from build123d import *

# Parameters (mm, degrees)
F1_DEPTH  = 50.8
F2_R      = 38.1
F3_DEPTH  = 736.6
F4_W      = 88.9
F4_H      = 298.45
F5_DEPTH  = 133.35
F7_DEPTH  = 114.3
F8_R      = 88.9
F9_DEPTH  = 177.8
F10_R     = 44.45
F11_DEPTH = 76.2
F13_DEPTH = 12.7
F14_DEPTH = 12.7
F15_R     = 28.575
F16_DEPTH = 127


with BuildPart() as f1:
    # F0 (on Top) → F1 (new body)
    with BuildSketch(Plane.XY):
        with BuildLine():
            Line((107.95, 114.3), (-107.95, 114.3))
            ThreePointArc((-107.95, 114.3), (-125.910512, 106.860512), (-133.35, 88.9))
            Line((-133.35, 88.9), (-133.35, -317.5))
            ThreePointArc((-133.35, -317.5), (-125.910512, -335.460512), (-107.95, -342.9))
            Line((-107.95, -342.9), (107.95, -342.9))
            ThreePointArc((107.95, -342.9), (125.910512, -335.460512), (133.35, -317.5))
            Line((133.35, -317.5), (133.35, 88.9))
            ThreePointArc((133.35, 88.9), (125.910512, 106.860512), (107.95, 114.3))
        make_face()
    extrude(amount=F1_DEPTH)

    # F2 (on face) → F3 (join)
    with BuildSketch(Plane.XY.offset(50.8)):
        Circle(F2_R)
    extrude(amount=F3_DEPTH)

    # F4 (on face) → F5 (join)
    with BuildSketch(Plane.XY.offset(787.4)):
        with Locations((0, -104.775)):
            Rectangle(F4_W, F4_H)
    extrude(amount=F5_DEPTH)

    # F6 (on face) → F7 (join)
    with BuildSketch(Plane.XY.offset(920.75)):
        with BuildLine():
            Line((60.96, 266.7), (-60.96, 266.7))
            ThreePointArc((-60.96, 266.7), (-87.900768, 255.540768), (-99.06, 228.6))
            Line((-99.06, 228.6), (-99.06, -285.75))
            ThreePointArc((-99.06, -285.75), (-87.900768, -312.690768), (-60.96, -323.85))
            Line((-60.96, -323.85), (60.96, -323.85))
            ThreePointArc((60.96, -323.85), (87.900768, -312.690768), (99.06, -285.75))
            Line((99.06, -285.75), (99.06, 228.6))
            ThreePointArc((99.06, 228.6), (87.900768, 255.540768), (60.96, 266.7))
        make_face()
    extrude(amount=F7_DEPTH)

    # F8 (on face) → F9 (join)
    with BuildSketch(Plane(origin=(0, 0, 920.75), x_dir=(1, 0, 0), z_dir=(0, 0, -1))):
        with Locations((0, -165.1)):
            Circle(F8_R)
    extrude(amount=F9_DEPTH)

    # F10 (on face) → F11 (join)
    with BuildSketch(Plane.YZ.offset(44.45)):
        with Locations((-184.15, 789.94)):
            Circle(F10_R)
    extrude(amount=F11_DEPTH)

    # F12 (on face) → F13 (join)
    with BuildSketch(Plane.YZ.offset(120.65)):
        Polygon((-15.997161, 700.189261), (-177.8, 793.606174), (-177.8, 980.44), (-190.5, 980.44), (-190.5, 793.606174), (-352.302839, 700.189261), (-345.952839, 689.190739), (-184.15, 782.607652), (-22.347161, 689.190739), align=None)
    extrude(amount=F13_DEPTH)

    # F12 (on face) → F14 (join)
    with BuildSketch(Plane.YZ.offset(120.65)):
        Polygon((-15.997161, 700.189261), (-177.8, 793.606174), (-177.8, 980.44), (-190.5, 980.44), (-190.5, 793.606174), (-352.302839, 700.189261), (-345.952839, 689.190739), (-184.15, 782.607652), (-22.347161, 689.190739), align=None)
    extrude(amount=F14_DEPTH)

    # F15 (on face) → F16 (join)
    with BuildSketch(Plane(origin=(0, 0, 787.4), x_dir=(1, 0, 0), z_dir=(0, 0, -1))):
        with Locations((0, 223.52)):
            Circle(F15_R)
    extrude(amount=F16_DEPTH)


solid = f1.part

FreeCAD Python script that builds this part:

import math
import FreeCAD as App
import Part
import Sketcher
from FreeCAD import Vector
Q = App.Units.Quantity

doc = App.newDocument("Part")
body = doc.addObject("PartDesign::Body", "Body")

# Sketch on XY plane
sketch1 = body.newObject("Sketcher::SketchObject", "Sketch")
sketch1.AttachmentSupport = (doc.getObject("XY_Plane"), [""])
sketch1.MapMode = "FlatFace"
sketch1.addGeometry([
    Part.LineSegment(Vector(108, 114, 0), Vector(-108, 114, 0)),  # 0
    Part.ArcOfCircle(Part.Circle(Vector(-108, 89, 0), Vector(0, 0, 1), 25), math.radians(90), math.radians(180)),  # 1
    Part.LineSegment(Vector(-133, 89, 0), Vector(-133, -318, 0)),  # 2
    Part.ArcOfCircle(Part.Circle(Vector(-108, -317, 0), Vector(0, 0, 1), 25), math.radians(-180), math.radians(-90)),  # 3
    Part.LineSegment(Vector(-108, -343, 0), Vector(108, -343, 0)),  # 4
    Part.ArcOfCircle(Part.Circle(Vector(108, -317, 0), Vector(0, 0, 1), 25), math.radians(-90), math.radians(0)),  # 5
    Part.LineSegment(Vector(133, -318, 0), Vector(133, 89, 0)),  # 6
    Part.ArcOfCircle(Part.Circle(Vector(108, 89, 0), Vector(0, 0, 1), 25), math.radians(0), math.radians(90)),  # 7
], False)
sketch1.addConstraint([
    Sketcher.Constraint("Tangent", 0, 2, 1, 1),
    Sketcher.Constraint("Tangent", 1, 2, 2, 1),
    Sketcher.Constraint("Tangent", 2, 2, 3, 1),
    Sketcher.Constraint("Tangent", 3, 2, 4, 1),
    Sketcher.Constraint("Tangent", 4, 2, 5, 1),
    Sketcher.Constraint("Tangent", 5, 2, 6, 1),
    Sketcher.Constraint("Tangent", 6, 2, 7, 1),
    Sketcher.Constraint("Tangent", 7, 2, 0, 1),
    Sketcher.Constraint("Horizontal", 0),
    Sketcher.Constraint("Vertical", 2),
    Sketcher.Constraint("Horizontal", 4),
    Sketcher.Constraint("Vertical", 6),
    Sketcher.Constraint("Equal", 1, 3),
    Sketcher.Constraint("Equal", 3, 5),
    Sketcher.Constraint("Equal", 5, 7),
    Sketcher.Constraint("Radius", 1, Q("1 in")),
    Sketcher.Constraint("DistanceY", 2, 2, 2, 1, Q("16 in")),
    Sketcher.Constraint("DistanceX", 0, 2, 0, 1, Q("8.5 in")),
    Sketcher.Constraint("DistanceY", -1, 1, 1, 3, Q("3.5 in")),
    Sketcher.Constraint("DistanceX", 1, 3, -1, 1, Q("4.25 in")),
])
pad1 = body.newObject("PartDesign::Pad", "Pad")
pad1.Profile = sketch1
pad1.Length = Q("2 in")

# Sketch on XY plane
sketch2 = body.newObject("Sketcher::SketchObject", "Sketch001")
sketch2.AttachmentSupport = (doc.getObject("XY_Plane"), [""])
sketch2.MapMode = "FlatFace"
sketch2.AttachmentOffset = App.Placement(Vector(0, 0, 2 * 25.4), App.Rotation())
sketch2.addGeometry(Part.Circle(Vector(0, 0, 0), Vector(0, 0, 1), 38), False)
sketch2.addConstraint([
    Sketcher.Constraint("Coincident", 0, 3, -1, 1),
    Sketcher.Constraint("Diameter", 0, Q("3 in")),
])
pad2 = body.newObject("PartDesign::Pad", "Pad001")
pad2.Profile = sketch2
pad2.Length = Q("29 in")

# Sketch on XY plane
sketch3 = body.newObject("Sketcher::SketchObject", "Sketch002")
sketch3.AttachmentSupport = (doc.getObject("XY_Plane"), [""])
sketch3.MapMode = "FlatFace"
sketch3.AttachmentOffset = App.Placement(Vector(0, 0, 31 * 25.4), App.Rotation())
sketch3.addGeometry([
    Part.LineSegment(Vector(-44, 44, 0), Vector(-44, -254, 0)),
    Part.LineSegment(Vector(-44, -254, 0), Vector(44, -254, 0)),
    Part.LineSegment(Vector(44, -254, 0), Vector(44, 44, 0)),
    Part.LineSegment(Vector(44, 44, 0), Vector(-44, 44, 0)),
], False)
sketch3.addConstraint([
    Sketcher.Constraint("Coincident", 0, 2, 1, 1),
    Sketcher.Constraint("Coincident", 1, 2, 2, 1),
    Sketcher.Constraint("Coincident", 2, 2, 3, 1),
    Sketcher.Constraint("Coincident", 3, 2, 0, 1),
    Sketcher.Constraint("Vertical", 0),
    Sketcher.Constraint("Horizontal", 1),
    Sketcher.Constraint("Vertical", 2),
    Sketcher.Constraint("Horizontal", 3),
    Sketcher.Constraint("DistanceX", 1, 1, 1, 2, Q("3.5 in")),
    Sketcher.Constraint("DistanceY", 0, 2, -1, 1, Q("10 in")),
    Sketcher.Constraint("DistanceY", 0, 2, 0, 1, Q("11.75 in")),
    Sketcher.Constraint("DistanceX", 0, 2, -1, 1, Q("1.75 in")),
])
pad3 = body.newObject("PartDesign::Pad", "Pad002")
pad3.Profile = sketch3
pad3.Length = Q("5.25 in")

# Sketch on XY plane
sketch4 = body.newObject("Sketcher::SketchObject", "Sketch003")
sketch4.AttachmentSupport = (doc.getObject("XY_Plane"), [""])
sketch4.MapMode = "FlatFace"
sketch4.AttachmentOffset = App.Placement(Vector(0, 0, 36.25 * 25.4), App.Rotation())
sketch4.addGeometry([
    Part.LineSegment(Vector(61, 267, 0), Vector(-61, 267, 0)),  # 0
    Part.ArcOfCircle(Part.Circle(Vector(-61, 229, 0), Vector(0, 0, 1), 38), math.radians(90), math.radians(180)),  # 1
    Part.LineSegment(Vector(-99, 229, 0), Vector(-99, -286, 0)),  # 2
    Part.ArcOfCircle(Part.Circle(Vector(-61, -286, 0), Vector(0, 0, 1), 38), math.radians(-180), math.radians(-90)),  # 3
    Part.LineSegment(Vector(-61, -324, 0), Vector(61, -324, 0)),  # 4
    Part.ArcOfCircle(Part.Circle(Vector(61, -286, 0), Vector(0, 0, 1), 38), math.radians(-90), math.radians(0)),  # 5
    Part.LineSegment(Vector(99, -286, 0), Vector(99, 229, 0)),  # 6
    Part.ArcOfCircle(Part.Circle(Vector(61, 229, 0), Vector(0, 0, 1), 38), math.radians(0), math.radians(90)),  # 7
], False)
sketch4.addConstraint([
    Sketcher.Constraint("Tangent", 0, 2, 1, 1),
    Sketcher.Constraint("Tangent", 1, 2, 2, 1),
    Sketcher.Constraint("Tangent", 2, 2, 3, 1),
    Sketcher.Constraint("Tangent", 3, 2, 4, 1),
    Sketcher.Constraint("Tangent", 4, 2, 5, 1),
    Sketcher.Constraint("Tangent", 5, 2, 6, 1),
    Sketcher.Constraint("Tangent", 6, 2, 7, 1),
    Sketcher.Constraint("Tangent", 7, 2, 0, 1),
    Sketcher.Constraint("Horizontal", 0),
    Sketcher.Constraint("Vertical", 2),
    Sketcher.Constraint("Horizontal", 4),
    Sketcher.Constraint("Vertical", 6),
    Sketcher.Constraint("Equal", 1, 3),
    Sketcher.Constraint("Equal", 3, 5),
    Sketcher.Constraint("Equal", 5, 7),
    Sketcher.Constraint("Radius", 1, Q("1.5 in")),
    Sketcher.Constraint("DistanceX", 0, 2, 0, 1, Q("4.8 in")),
    Sketcher.Constraint("DistanceY", -1, 1, 1, 3, Q("9 in")),
    Sketcher.Constraint("DistanceY", 2, 2, 2, 1, Q("20.25 in")),
    Sketcher.Constraint("DistanceX", 1, 3, -1, 1, Q("2.4 in")),
])
pad4 = body.newObject("PartDesign::Pad", "Pad003")
pad4.Profile = sketch4
pad4.Length = Q("4.5 in")

# Sketch on XY plane
sketch5 = body.newObject("Sketcher::SketchObject", "Sketch004")
sketch5.AttachmentSupport = (doc.getObject("XY_Plane"), [""])
sketch5.MapMode = "FlatFace"
sketch5.AttachmentOffset = App.Placement(Vector(0, 0, 36.25 * 25.4), App.Rotation())
sketch5.addGeometry(Part.Circle(Vector(0, 165, 0), Vector(0, 0, 1), 89), False)
sketch5.addConstraint([
    Sketcher.Constraint("PointOnObject", 0, 3, -2),
    Sketcher.Constraint("Diameter", 0, Q("7 in")),
    Sketcher.Constraint("DistanceY", -1, 1, 0, 3, Q("6.5 in")),
])
pad5 = body.newObject("PartDesign::Pad", "Pad004")
pad5.Profile = sketch5
pad5.Length = Q("7 in")
pad5.Reversed = True

# Sketch on YZ plane
sketch6 = body.newObject("Sketcher::SketchObject", "Sketch005")
sketch6.AttachmentSupport = (doc.getObject("YZ_Plane"), [""])
sketch6.MapMode = "FlatFace"
sketch6.AttachmentOffset = App.Placement(Vector(0, 0, 1.75 * 25.4), App.Rotation())
sketch6.addGeometry(Part.Circle(Vector(-184, 790, 0), Vector(0, 0, 1), 44), False)
sketch6.addConstraint([
    Sketcher.Constraint("Diameter", 0, Q("3.5 in")),
    Sketcher.Constraint("DistanceY", -1, 1, 0, 3, Q("31.1 in")),
    Sketcher.Constraint("DistanceX", 0, 3, -1, 1, Q("7.25 in")),
])
pad6 = body.newObject("PartDesign::Pad", "Pad005")
pad6.Profile = sketch6
pad6.Length = Q("3 in")

# Sketch on YZ plane
sketch7 = body.newObject("Sketcher::SketchObject", "Sketch006")
sketch7.AttachmentSupport = (doc.getObject("YZ_Plane"), [""])
sketch7.MapMode = "FlatFace"
sketch7.AttachmentOffset = App.Placement(Vector(0, 0, 4.75 * 25.4), App.Rotation())
sketch7.addGeometry([
    Part.LineSegment(Vector(-16, 700, 0), Vector(-178, 794, 0)),  # 0
    Part.LineSegment(Vector(-178, 794, 0), Vector(-178, 980, 0)),  # 1
    Part.LineSegment(Vector(-178, 980, 0), Vector(-190, 980, 0)),  # 2
    Part.LineSegment(Vector(-190, 980, 0), Vector(-190, 794, 0)),  # 3
    Part.LineSegment(Vector(-190, 794, 0), Vector(-352, 700, 0)),  # 4
    Part.LineSegment(Vector(-352, 700, 0), Vector(-346, 689, 0)),  # 5
    Part.LineSegment(Vector(-346, 689, 0), Vector(-184, 783, 0)),  # 6
    Part.LineSegment(Vector(-184, 783, 0), Vector(-22, 689, 0)),  # 7
    Part.LineSegment(Vector(-22, 689, 0), Vector(-16, 700, 0)),  # 8
], False)
sketch7.addConstraint([
    Sketcher.Constraint("Coincident", 0, 2, 1, 1),
    Sketcher.Constraint("Coincident", 1, 2, 2, 1),
    Sketcher.Constraint("Coincident", 2, 2, 3, 1),
    Sketcher.Constraint("Coincident", 3, 2, 4, 1),
    Sketcher.Constraint("Coincident", 4, 2, 5, 1),
    Sketcher.Constraint("Coincident", 5, 2, 6, 1),
    Sketcher.Constraint("Coincident", 6, 2, 7, 1),
    Sketcher.Constraint("Coincident", 7, 2, 8, 1),
    Sketcher.Constraint("Coincident", 8, 2, 0, 1),
    Sketcher.Constraint("Vertical", 1),
    Sketcher.Constraint("Horizontal", 2),
    Sketcher.Constraint("Vertical", 3),
    Sketcher.Constraint("Perpendicular", 4, 5),
    Sketcher.Constraint("Perpendicular", 5, 6),
    Sketcher.Constraint("Parallel", 0, 7),
    Sketcher.Constraint("Perpendicular", 7, 8),
    Sketcher.Constraint("Horizontal", 0, 2, 3, 2),
    Sketcher.Constraint("Horizontal", 5, 2, 7, 2),
    Sketcher.Constraint("Horizontal", 4, 2, 8, 2),
    Sketcher.Constraint("Equal", 0, 4),
    Sketcher.Constraint("Equal", 4, 6),
    Sketcher.Constraint("DistanceX", 2, 2, 2, 1, Q("0.5 in")),
    Sketcher.Constraint("DistanceX", 0, 2, -1, 1, Q("7 in")),
    Sketcher.Constraint("Angle", 0, Q("150 deg")),
    Sketcher.Constraint("DistanceY", -1, 1, 1, 2, Q("38.6 in")),
    Sketcher.Constraint("DistanceY", 1, 1, 1, 2, 186.833826),
    Sketcher.Constraint("DistanceX", 4, 2, -1, 1, 352.302839),
])
pad7 = body.newObject("PartDesign::Pad", "Pad006")
pad7.Profile = sketch7
pad7.Length = Q("0.5 in")

# Sketch on YZ plane
sketch8 = body.newObject("Sketcher::SketchObject", "Sketch007")
sketch8.AttachmentSupport = (doc.getObject("YZ_Plane"), [""])
sketch8.MapMode = "FlatFace"
sketch8.AttachmentOffset = App.Placement(Vector(0, 0, 4.75 * 25.4), App.Rotation())
sketch8.addGeometry([
    Part.LineSegment(Vector(-16, 700, 0), Vector(-178, 794, 0)),  # 0
    Part.LineSegment(Vector(-178, 794, 0), Vector(-178, 980, 0)),  # 1
    Part.LineSegment(Vector(-178, 980, 0), Vector(-190, 980, 0)),  # 2
    Part.LineSegment(Vector(-190, 980, 0), Vector(-190, 794, 0)),  # 3
    Part.LineSegment(Vector(-190, 794, 0), Vector(-352, 700, 0)),  # 4
    Part.LineSegment(Vector(-352, 700, 0), Vector(-346, 689, 0)),  # 5
    Part.LineSegment(Vector(-346, 689, 0), Vector(-184, 783, 0)),  # 6
    Part.LineSegment(Vector(-184, 783, 0), Vector(-22, 689, 0)),  # 7
    Part.LineSegment(Vector(-22, 689, 0), Vector(-16, 700, 0)),  # 8
], False)
sketch8.addConstraint([
    Sketcher.Constraint("Coincident", 0, 2, 1, 1),
    Sketcher.Constraint("Coincident", 1, 2, 2, 1),
    Sketcher.Constraint("Coincident", 2, 2, 3, 1),
    Sketcher.Constraint("Coincident", 3, 2, 4, 1),
    Sketcher.Constraint("Coincident", 4, 2, 5, 1),
    Sketcher.Constraint("Coincident", 5, 2, 6, 1),
    Sketcher.Constraint("Coincident", 6, 2, 7, 1),
    Sketcher.Constraint("Coincident", 7, 2, 8, 1),
    Sketcher.Constraint("Coincident", 8, 2, 0, 1),
    Sketcher.Constraint("Vertical", 1),
    Sketcher.Constraint("Horizontal", 2),
    Sketcher.Constraint("Vertical", 3),
    Sketcher.Constraint("Perpendicular", 4, 5),
    Sketcher.Constraint("Perpendicular", 5, 6),
    Sketcher.Constraint("Parallel", 0, 7),
    Sketcher.Constraint("Perpendicular", 7, 8),
    Sketcher.Constraint("Horizontal", 0, 2, 3, 2),
    Sketcher.Constraint("Horizontal", 5, 2, 7, 2),
    Sketcher.Constraint("Horizontal", 4, 2, 8, 2),
    Sketcher.Constraint("Equal", 0, 4),
    Sketcher.Constraint("Equal", 4, 6),
    Sketcher.Constraint("DistanceX", 2, 2, 2, 1, Q("0.5 in")),
    Sketcher.Constraint("DistanceX", 0, 2, -1, 1, Q("7 in")),
    Sketcher.Constraint("Angle", 0, Q("150 deg")),
    Sketcher.Constraint("DistanceY", -1, 1, 1, 2, Q("38.6 in")),
    Sketcher.Constraint("DistanceY", 1, 1, 1, 2, 186.833826),
    Sketcher.Constraint("DistanceX", 4, 2, -1, 1, 352.302839),
])
pad8 = body.newObject("PartDesign::Pad", "Pad007")
pad8.Profile = sketch8
pad8.Length = Q("0.5 in")

# Sketch on XY plane
sketch9 = body.newObject("Sketcher::SketchObject", "Sketch008")
sketch9.AttachmentSupport = (doc.getObject("XY_Plane"), [""])
sketch9.MapMode = "FlatFace"
sketch9.AttachmentOffset = App.Placement(Vector(0, 0, 31 * 25.4), App.Rotation())
sketch9.addGeometry(Part.Circle(Vector(0, -224, 0), Vector(0, 0, 1), 29), False)
sketch9.addConstraint([
    Sketcher.Constraint("PointOnObject", 0, 3, -2),
    Sketcher.Constraint("Diameter", 0, Q("2.25 in")),
    Sketcher.Constraint("DistanceY", 0, 3, -1, 1, Q("8.8 in")),
])
pad9 = body.newObject("PartDesign::Pad", "Pad008")
pad9.Profile = sketch9
pad9.Length = Q("5 in")
pad9.Reversed = True

doc.recompute()
